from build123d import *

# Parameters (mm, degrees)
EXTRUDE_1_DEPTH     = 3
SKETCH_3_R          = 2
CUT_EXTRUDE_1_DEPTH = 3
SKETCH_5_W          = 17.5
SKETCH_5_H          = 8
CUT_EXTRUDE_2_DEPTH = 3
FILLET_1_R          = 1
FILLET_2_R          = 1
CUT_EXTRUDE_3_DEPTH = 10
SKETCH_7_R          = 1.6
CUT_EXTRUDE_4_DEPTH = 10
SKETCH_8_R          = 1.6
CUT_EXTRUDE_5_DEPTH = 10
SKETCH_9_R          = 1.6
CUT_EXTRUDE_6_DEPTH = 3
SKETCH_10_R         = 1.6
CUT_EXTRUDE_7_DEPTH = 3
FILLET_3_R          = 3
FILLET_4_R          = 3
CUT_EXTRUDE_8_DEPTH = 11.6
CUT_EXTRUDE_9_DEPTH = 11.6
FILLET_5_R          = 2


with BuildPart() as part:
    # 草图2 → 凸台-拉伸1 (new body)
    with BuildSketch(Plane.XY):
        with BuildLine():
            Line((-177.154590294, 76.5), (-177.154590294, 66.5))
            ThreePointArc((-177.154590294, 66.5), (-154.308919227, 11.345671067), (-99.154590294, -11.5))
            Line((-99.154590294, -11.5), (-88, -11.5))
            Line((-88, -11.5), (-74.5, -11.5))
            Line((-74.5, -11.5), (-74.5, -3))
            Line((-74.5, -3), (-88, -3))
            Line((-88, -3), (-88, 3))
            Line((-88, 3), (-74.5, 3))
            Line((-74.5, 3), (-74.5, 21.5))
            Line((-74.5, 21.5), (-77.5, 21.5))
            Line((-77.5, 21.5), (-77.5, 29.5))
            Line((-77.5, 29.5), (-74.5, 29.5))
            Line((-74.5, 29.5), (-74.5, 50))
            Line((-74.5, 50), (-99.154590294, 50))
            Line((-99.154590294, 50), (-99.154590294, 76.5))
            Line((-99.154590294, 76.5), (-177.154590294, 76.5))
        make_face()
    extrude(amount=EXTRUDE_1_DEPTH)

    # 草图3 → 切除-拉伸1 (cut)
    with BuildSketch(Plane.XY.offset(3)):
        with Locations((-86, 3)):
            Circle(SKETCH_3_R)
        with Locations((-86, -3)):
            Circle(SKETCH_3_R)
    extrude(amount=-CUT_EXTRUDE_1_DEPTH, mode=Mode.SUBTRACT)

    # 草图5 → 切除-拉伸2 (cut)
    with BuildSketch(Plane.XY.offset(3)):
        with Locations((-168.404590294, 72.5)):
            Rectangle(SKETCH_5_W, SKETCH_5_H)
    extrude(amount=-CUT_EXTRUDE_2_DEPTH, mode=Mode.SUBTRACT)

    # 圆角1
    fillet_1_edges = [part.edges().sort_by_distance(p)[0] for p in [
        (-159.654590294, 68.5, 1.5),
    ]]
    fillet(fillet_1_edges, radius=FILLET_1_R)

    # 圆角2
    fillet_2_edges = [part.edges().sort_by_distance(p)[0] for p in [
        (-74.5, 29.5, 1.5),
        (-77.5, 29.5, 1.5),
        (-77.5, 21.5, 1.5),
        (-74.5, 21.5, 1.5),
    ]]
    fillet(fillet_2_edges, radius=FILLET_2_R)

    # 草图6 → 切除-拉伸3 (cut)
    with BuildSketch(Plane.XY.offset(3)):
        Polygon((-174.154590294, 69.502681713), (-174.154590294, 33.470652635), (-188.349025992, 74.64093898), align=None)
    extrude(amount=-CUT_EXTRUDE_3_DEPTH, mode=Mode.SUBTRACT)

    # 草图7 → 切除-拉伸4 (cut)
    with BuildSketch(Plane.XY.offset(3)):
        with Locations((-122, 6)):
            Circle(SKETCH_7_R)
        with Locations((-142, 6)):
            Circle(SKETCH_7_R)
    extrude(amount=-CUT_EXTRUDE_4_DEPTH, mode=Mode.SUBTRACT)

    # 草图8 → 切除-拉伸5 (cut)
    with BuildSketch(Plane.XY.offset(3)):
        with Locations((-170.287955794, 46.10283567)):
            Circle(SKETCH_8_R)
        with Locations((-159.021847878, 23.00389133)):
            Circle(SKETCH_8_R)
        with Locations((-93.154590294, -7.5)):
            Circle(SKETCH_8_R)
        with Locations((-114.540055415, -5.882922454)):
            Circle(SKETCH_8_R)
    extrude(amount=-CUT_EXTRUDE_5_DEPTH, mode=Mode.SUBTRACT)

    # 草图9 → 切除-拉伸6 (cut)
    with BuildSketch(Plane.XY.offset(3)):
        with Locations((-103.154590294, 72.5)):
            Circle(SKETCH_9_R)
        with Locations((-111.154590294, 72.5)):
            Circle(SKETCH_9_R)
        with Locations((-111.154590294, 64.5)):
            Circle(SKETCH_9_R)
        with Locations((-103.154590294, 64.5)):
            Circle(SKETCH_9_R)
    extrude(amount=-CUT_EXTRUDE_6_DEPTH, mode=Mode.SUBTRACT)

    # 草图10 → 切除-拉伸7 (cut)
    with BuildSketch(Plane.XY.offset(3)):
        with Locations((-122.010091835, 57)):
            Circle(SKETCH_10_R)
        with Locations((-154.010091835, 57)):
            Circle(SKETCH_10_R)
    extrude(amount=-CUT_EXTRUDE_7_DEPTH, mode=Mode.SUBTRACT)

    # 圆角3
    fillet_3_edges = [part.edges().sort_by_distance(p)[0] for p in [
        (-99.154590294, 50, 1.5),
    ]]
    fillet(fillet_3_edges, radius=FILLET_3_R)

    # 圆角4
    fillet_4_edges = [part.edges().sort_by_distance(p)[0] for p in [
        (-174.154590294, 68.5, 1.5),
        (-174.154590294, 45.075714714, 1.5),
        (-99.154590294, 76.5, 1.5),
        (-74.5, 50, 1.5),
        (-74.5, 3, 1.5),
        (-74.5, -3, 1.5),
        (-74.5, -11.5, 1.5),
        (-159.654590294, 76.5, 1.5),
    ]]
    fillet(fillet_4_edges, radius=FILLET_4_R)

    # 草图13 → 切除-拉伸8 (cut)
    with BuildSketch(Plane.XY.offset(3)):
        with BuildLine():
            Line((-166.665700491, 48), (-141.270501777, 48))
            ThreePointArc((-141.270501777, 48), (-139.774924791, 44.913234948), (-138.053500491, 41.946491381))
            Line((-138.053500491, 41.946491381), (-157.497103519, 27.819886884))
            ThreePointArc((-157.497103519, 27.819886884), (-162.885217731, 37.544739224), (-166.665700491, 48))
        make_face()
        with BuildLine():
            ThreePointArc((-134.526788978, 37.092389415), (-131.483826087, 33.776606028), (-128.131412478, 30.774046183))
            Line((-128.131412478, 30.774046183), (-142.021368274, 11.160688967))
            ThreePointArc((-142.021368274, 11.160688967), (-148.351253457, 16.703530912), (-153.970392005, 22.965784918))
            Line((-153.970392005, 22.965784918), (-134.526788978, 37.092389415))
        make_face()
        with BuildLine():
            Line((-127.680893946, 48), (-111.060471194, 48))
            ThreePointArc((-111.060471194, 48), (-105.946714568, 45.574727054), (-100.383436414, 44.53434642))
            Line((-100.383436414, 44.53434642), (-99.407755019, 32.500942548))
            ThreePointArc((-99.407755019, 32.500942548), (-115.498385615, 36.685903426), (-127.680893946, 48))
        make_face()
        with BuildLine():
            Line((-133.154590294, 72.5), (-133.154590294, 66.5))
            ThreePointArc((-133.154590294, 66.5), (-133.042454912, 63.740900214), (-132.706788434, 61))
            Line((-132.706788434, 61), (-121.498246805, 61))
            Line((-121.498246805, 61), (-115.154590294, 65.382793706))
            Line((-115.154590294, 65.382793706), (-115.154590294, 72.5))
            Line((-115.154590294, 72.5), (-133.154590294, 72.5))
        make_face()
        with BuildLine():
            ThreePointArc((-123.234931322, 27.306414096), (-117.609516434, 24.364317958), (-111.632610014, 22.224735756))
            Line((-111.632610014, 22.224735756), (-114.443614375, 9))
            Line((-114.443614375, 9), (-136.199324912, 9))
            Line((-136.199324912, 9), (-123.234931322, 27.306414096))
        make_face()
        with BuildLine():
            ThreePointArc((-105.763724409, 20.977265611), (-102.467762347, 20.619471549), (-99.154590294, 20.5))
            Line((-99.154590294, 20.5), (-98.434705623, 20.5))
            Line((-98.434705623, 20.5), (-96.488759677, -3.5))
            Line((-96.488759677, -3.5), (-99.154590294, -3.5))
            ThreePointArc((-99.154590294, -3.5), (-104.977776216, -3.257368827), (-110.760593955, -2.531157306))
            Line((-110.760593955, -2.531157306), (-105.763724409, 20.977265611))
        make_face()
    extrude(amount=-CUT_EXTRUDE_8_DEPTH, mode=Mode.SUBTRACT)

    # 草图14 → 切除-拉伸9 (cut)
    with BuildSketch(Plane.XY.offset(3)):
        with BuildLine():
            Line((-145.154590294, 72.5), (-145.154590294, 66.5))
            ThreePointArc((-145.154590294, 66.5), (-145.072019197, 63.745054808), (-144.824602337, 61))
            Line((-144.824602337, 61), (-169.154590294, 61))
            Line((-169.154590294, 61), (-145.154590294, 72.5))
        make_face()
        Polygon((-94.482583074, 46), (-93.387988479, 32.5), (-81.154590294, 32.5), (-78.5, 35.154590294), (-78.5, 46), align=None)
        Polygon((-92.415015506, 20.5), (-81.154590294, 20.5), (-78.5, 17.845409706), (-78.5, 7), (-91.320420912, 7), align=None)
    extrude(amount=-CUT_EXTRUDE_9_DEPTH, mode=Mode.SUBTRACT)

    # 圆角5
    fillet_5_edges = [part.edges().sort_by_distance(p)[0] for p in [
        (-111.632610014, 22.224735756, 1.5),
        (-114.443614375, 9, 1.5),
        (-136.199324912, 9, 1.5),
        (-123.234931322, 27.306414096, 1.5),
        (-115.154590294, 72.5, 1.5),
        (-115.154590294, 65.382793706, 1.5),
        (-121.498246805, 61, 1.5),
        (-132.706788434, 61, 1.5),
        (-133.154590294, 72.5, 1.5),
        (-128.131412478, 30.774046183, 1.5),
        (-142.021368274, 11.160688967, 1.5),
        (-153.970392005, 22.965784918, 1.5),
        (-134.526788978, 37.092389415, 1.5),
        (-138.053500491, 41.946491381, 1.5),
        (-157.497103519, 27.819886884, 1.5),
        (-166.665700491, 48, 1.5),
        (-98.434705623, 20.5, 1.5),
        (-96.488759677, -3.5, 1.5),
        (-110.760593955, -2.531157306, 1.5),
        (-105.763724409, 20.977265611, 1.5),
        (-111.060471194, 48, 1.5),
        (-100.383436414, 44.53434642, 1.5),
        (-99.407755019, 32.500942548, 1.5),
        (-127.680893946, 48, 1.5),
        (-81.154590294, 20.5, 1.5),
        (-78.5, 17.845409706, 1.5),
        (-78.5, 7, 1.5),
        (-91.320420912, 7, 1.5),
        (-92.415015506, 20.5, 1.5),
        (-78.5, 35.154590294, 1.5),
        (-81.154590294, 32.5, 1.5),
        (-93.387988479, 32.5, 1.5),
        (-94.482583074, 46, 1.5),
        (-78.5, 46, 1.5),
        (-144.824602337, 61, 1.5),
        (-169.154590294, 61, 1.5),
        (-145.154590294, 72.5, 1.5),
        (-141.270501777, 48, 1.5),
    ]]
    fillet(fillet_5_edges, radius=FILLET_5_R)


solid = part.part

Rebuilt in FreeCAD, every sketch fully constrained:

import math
import FreeCAD as App
import Part
import Sketcher
Q = App.Units.Quantity


def edges_at(feature, points):
    """Names of the edges that pass closest to the given points."""
    edges = feature.Shape.Edges
    near = lambda p: min(range(len(edges)), key=lambda i: edges[i].distToShape(Part.Vertex(*p))[0])
    return sorted({f"Edge{near(p) + 1}" for p in points})


def add_polygon(sketch, points):
    """Adds a closed chain of lines whose ends are joined by coincident constraints."""
    first, n = sketch.GeometryCount, len(points)
    for a, b in zip(points, points[1:] + points[:1]):
        sketch.addGeometry(Part.LineSegment(App.Vector(*a, 0), App.Vector(*b, 0)), False)
    for i in range(n):
        sketch.addConstraint(Sketcher.Constraint("Coincident", first + i, 2, first + (i + 1) % n, 1))

doc = App.newDocument("Part")
params = doc.addObject("Spreadsheet::Sheet", "Params")
for row, (alias, value) in enumerate([
    ("sketch1_radius", "78 mm"),
    ("sketch1_width", "3 mm"),
    ("sketch1_height", "10 mm"),
    ("sketch1_height2", "6 mm"),
    ("sketch1_height3", "8 mm"),
    ("pad1_length", "3 mm"),
    ("sketch2_diameter", "4 mm"),
    ("pocket1_length", "3 mm"),
    ("sketch3_height", "8 mm"),
    ("sketch3_width", "17.5 mm"),
    ("pocket2_length", "3 mm"),
    ("fillet_radius", "1 mm"),
    ("fillet2_radius", "1 mm"),
    ("pocket3_length", "10 mm"),
    ("sketch5_diameter", "3.2 mm"),
    ("pocket4_length", "10 mm"),
    ("sketch6_diameter", "3.2 mm"),
    ("pocket5_length", "10 mm"),
    ("sketch7_diameter", "3.2 mm"),
    ("pocket6_length", "3 mm"),
    ("sketch8_diameter", "3.2 mm"),
    ("pocket7_length", "3 mm"),
    ("fillet3_radius", "3 mm"),
    ("fillet4_radius", "3 mm"),
    ("sketch9_radius", "70 mm"),
    ("sketch9_radius2", "46 mm"),
    ("sketch9_radius3", "34 mm"),
    ("sketch9_radius4", "22 mm"),
    ("sketch9_width", "18 mm"),
    ("pocket8_length", "11.6 mm"),
    ("sketch10_radius", "46 mm"),
    ("sketch10_height", "6 mm"),
    ("pocket9_length", "11.6 mm"),
    ("fillet5_radius", "2 mm"),
], start=1):
    params.set(f"A{row}", alias)
    params.set(f"B{row}", "=" + value)
    params.setAlias(f"B{row}", alias)

body = doc.addObject("PartDesign::Body", "Body")

# Sketch on XY plane
sketch1 = body.newObject("Sketcher::SketchObject", "Sketch")
sketch1.AttachmentSupport = (doc.getObject("XY_Plane"), [""])
sketch1.MapMode = "FlatFace"
sketch1.addGeometry([
    Part.LineSegment(App.Vector(-177.2, 76.5, 0), App.Vector(-177.2, 66.5, 0)),  # 0
    Part.ArcOfCircle(Part.Circle(App.Vector(-99.2, 66.5, 0), App.Vector(0, 0, 1), 78), math.radians(180), math.radians(270)),  # 1
    Part.LineSegment(App.Vector(-99.2, -11.5, 0), App.Vector(-74.5, -11.5, 0)),  # 2
    Part.LineSegment(App.Vector(-74.5, -11.5, 0), App.Vector(-74.5, -3, 0)),  # 3
    Part.LineSegment(App.Vector(-74.5, -3, 0), App.Vector(-88, -3, 0)),  # 4
    Part.LineSegment(App.Vector(-88, -3, 0), App.Vector(-88, 3, 0)),  # 5
    Part.LineSegment(App.Vector(-88, 3, 0), App.Vector(-74.5, 3, 0)),  # 6
    Part.LineSegment(App.Vector(-74.5, 3, 0), App.Vector(-74.5, 21.5, 0)),  # 7
    Part.LineSegment(App.Vector(-74.5, 21.5, 0), App.Vector(-77.5, 21.5, 0)),  # 8
    Part.LineSegment(App.Vector(-77.5, 21.5, 0), App.Vector(-77.5, 29.5, 0)),  # 9
    Part.LineSegment(App.Vector(-77.5, 29.5, 0), App.Vector(-74.5, 29.5, 0)),  # 10
    Part.LineSegment(App.Vector(-74.5, 29.5, 0), App.Vector(-74.5, 50, 0)),  # 11
    Part.LineSegment(App.Vector(-74.5, 50, 0), App.Vector(-99.2, 50, 0)),  # 12
    Part.LineSegment(App.Vector(-99.2, 50, 0), App.Vector(-99.2, 76.5, 0)),  # 13
    Part.LineSegment(App.Vector(-99.2, 76.5, 0), App.Vector(-177.2, 76.5, 0)),  # 14
], False)
sketch1.addConstraint([
    Sketcher.Constraint("Tangent", 0, 2, 1, 1),
    Sketcher.Constraint("Tangent", 1, 2, 2, 1),
    Sketcher.Constraint("Coincident", 2, 2, 3, 1),
    Sketcher.Constraint("Coincident", 3, 2, 4, 1),
    Sketcher.Constraint("Coincident", 4, 2, 5, 1),
    Sketcher.Constraint("Coincident", 5, 2, 6, 1),
    Sketcher.Constraint("Coincident", 6, 2, 7, 1),
    Sketcher.Constraint("Coincident", 7, 2, 8, 1),
    Sketcher.Constraint("Coincident", 8, 2, 9, 1),
    Sketcher.Constraint("Coincident", 9, 2, 10, 1),
    Sketcher.Constraint("Coincident", 10, 2, 11, 1),
    Sketcher.Constraint("Coincident", 11, 2, 12, 1),
    Sketcher.Constraint("Coincident", 12, 2, 13, 1),
    Sketcher.Constraint("Coincident", 13, 2, 14, 1),
    Sketcher.Constraint("Coincident", 14, 2, 0, 1),
    Sketcher.Constraint("Vertical", 0),
    Sketcher.Constraint("Horizontal", 2),
    Sketcher.Constraint("Vertical", 3),
    Sketcher.Constraint("Horizontal", 4),
    Sketcher.Constraint("Vertical", 5),
    Sketcher.Constraint("Horizontal", 6),
    Sketcher.Constraint("Vertical", 7),
    Sketcher.Constraint("Horizontal", 8),
    Sketcher.Constraint("Vertical", 9),
    Sketcher.Constraint("Horizontal", 10),
    Sketcher.Constraint("Vertical", 11),
    Sketcher.Constraint("Horizontal", 12),
    Sketcher.Constraint("Vertical", 13),
    Sketcher.Constraint("Horizontal", 14),
    Sketcher.Constraint("Symmetric", 3, 2, 6, 2, -1),
    Sketcher.Constraint("Vertical", 7, 2, 10, 2),
    Sketcher.Constraint("Vertical", 1, 2, 12, 2),
    Sketcher.Constraint("Radius", 1, 78.0),
    Sketcher.Constraint("DistanceX", 8, 2, 8, 1, 3.0),
    Sketcher.Constraint("DistanceY", 0, 2, 0, 1, 10.0),
    Sketcher.Constraint("DistanceY", 5, 1, 5, 2, 6.0),
    Sketcher.Constraint("DistanceY", 9, 1, 9, 2, 8.0),
    Sketcher.Constraint("DistanceX", 4, 2, 4, 1, 13.5),
    Sketcher.Constraint("DistanceY", 3, 1, 3, 2, 8.5),
    Sketcher.Constraint("DistanceY", 7, 1, 7, 2, 18.5),
    Sketcher.Constraint("DistanceY", 11, 1, 11, 2, 20.5),
    Sketcher.Constraint("DistanceX", 4, 2, -1, 1, 88.0),
    Sketcher.Constraint("DistanceX", 2, 1, 2, 2, 24.65459),
])
sketch1.setExpression("Constraints[32]", "Params.sketch1_radius")
sketch1.setExpression("Constraints[33]", "Params.sketch1_width")
sketch1.setExpression("Constraints[34]", "Params.sketch1_height")
sketch1.setExpression("Constraints[35]", "Params.sketch1_height2")
sketch1.setExpression("Constraints[36]", "Params.sketch1_height3")
pad1 = body.newObject("PartDesign::Pad", "Pad")
pad1.Profile = sketch1
pad1.setExpression("Length", "Params.pad1_length")

# Sketch on XY plane
sketch2 = body.newObject("Sketcher::SketchObject", "Sketch001")
sketch2.AttachmentSupport = (doc.getObject("XY_Plane"), [""])
sketch2.MapMode = "FlatFace"
sketch2.AttachmentOffset = App.Placement(App.Vector(0, 0, 3), App.Rotation())
sketch2.addGeometry([
    Part.Circle(App.Vector(-86, 3, 0), App.Vector(0, 0, 1), 2),
    Part.Circle(App.Vector(-86, -3, 0), App.Vector(0, 0, 1), 2),
], False)
sketch2.addConstraint([
    Sketcher.Constraint("Equal", 0, 1),
    Sketcher.Constraint("Symmetric", 0, 3, 1, 3, -1),
    Sketcher.Constraint("Diameter", 0, 4.0),
    Sketcher.Constraint("DistanceX", 0, 3, -1, 1, 86.0),
    Sketcher.Constraint("DistanceY", -1, 1, 0, 3, 3.0),
])
sketch2.setExpression("Constraints[2]", "Params.sketch2_diameter")
pocket1 = body.newObject("PartDesign::Pocket", "Pocket")
pocket1.Profile = sketch2
pocket1.setExpression("Length", "Params.pocket1_length")

# Sketch on XY plane
sketch3 = body.newObject("Sketcher::SketchObject", "Sketch002")
sketch3.AttachmentSupport = (doc.getObject("XY_Plane"), [""])
sketch3.MapMode = "FlatFace"
sketch3.AttachmentOffset = App.Placement(App.Vector(0, 0, 3), App.Rotation())
add_polygon(sketch3, [(-177, 76), (-177, 68), (-160, 68), (-160, 76)])  # lines 0-3
sketch3.addConstraint([
    Sketcher.Constraint("Vertical", 0),
    Sketcher.Constraint("Horizontal", 1),
    Sketcher.Constraint("Vertical", 2),
    Sketcher.Constraint("Horizontal", 3),
    Sketcher.Constraint("DistanceY", 0, 2, 0, 1, 8.0),
    Sketcher.Constraint("DistanceX", 1, 1, 1, 2, 17.5),
    Sketcher.Constraint("DistanceY", -1, 1, 0, 2, 68.5),
    Sketcher.Constraint("DistanceX", 0, 2, -1, 1, 177.15459),
])
sketch3.setExpression("Constraints[8]", "Params.sketch3_height")
sketch3.setExpression("Constraints[9]", "Params.sketch3_width")
pocket2 = body.newObject("PartDesign::Pocket", "Pocket001")
pocket2.Profile = sketch3
pocket2.setExpression("Length", "Params.pocket2_length")
doc.recompute()

fillet = body.newObject("PartDesign::Fillet", "Fillet")
fillet.Base = (pocket2, edges_at(pocket2, [(-159.655, 68.5, 1.5)]))
fillet.setExpression("Radius", "Params.fillet_radius")
doc.recompute()

fillet2 = body.newObject("PartDesign::Fillet", "Fillet001")
fillet2.Base = (fillet, edges_at(fillet, [
    (-74.5, 29.5, 1.5),
    (-77.5, 29.5, 1.5),
    (-77.5, 21.5, 1.5),
    (-74.5, 21.5, 1.5),
]))
fillet2.setExpression("Radius", "Params.fillet2_radius")

# Sketch on XY plane
sketch4 = body.newObject("Sketcher::SketchObject", "Sketch003")
sketch4.AttachmentSupport = (doc.getObject("XY_Plane"), [""])
sketch4.MapMode = "FlatFace"
sketch4.AttachmentOffset = App.Placement(App.Vector(0, 0, 3), App.Rotation())
add_polygon(sketch4, [(-174, 33), (-174, 70), (-188, 75)])  # lines 0-2
sketch4.addConstraint([
    Sketcher.Constraint("Vertical", 0),
    Sketcher.Constraint("DistanceY", 0, 1, 0, 2, 36.032029),
    Sketcher.Constraint("Distance", 2, 43.54853),
    Sketcher.Constraint("DistanceX", 0, 2, -1, 1, 174.15459),
    Sketcher.Constraint("DistanceY", -1, 1, 0, 2, 69.502682),
    Sketcher.Constraint("DistanceY", -1, 1, 1, 2, 74.640939),
])
pocket3 = body.newObject("PartDesign::Pocket", "Pocket002")
pocket3.Profile = sketch4
pocket3.setExpression("Length", "Params.pocket3_length")

# Sketch on XY plane
sketch5 = body.newObject("Sketcher::SketchObject", "Sketch004")
sketch5.AttachmentSupport = (doc.getObject("XY_Plane"), [""])
sketch5.MapMode = "FlatFace"
sketch5.AttachmentOffset = App.Placement(App.Vector(0, 0, 3), App.Rotation())
sketch5.addGeometry([
    Part.Circle(App.Vector(-122, 6, 0), App.Vector(0, 0, 1), 1.6),
    Part.Circle(App.Vector(-142, 6, 0), App.Vector(0, 0, 1), 1.6),
], False)
sketch5.addConstraint([
    Sketcher.Constraint("Equal", 0, 1),
    Sketcher.Constraint("Horizontal", 0, 3, 1, 3),
    Sketcher.Constraint("Diameter", 0, 3.2),
    Sketcher.Constraint("DistanceX", 0, 3, -1, 1, 122.0),
    Sketcher.Constraint("DistanceY", -1, 1, 0, 3, 6.0),
    Sketcher.Constraint("DistanceX", 1, 3, -1, 1, 142.0),
])
sketch5.setExpression("Constraints[2]", "Params.sketch5_diameter")
pocket4 = body.newObject("PartDesign::Pocket", "Pocket003")
pocket4.Profile = sketch5
pocket4.setExpression("Length", "Params.pocket4_length")

# Sketch on XY plane
sketch6 = body.newObject("Sketcher::SketchObject", "Sketch005")
sketch6.AttachmentSupport = (doc.getObject("XY_Plane"), [""])
sketch6.MapMode = "FlatFace"
sketch6.AttachmentOffset = App.Placement(App.Vector(0, 0, 3), App.Rotation())
sketch6.addGeometry([
    Part.Circle(App.Vector(-170.3, 46.1, 0), App.Vector(0, 0, 1), 1.6),
    Part.Circle(App.Vector(-159, 23, 0), App.Vector(0, 0, 1), 1.6),
    Part.Circle(App.Vector(-93.2, -7.5, 0), App.Vector(0, 0, 1), 1.6),
    Part.Circle(App.Vector(-114.5, -5.9, 0), App.Vector(0, 0, 1), 1.6),
], False)
sketch6.addConstraint([
    Sketcher.Constraint("Equal", 0, 1),
    Sketcher.Constraint("Equal", 1, 2),
    Sketcher.Constraint("Equal", 2, 3),
    Sketcher.Constraint("Diameter", 0, 3.2),
    Sketcher.Constraint("DistanceY", 2, 3, -1, 1, 7.5),
    Sketcher.Constraint("DistanceX", 0, 3, 3, 3, 55.7479),
    Sketcher.Constraint("DistanceY", -1, 1, 1, 3, 23.003891),
    Sketcher.Constraint("DistanceX", 2, 3, -1, 1, 93.15459),
    Sketcher.Constraint("DistanceY", 3, 3, 0, 3, 51.985758),
    Sketcher.Constraint("DistanceX", 0, 3, -1, 1, 170.287956),
    Sketcher.Constraint("DistanceY", -1, 1, 0, 3, 46.102836),
    Sketcher.Constraint("DistanceX", 1, 3, -1, 1, 159.021848),
])
sketch6.setExpression("Constraints[3]", "Params.sketch6_diameter")
pocket5 = body.newObject("PartDesign::Pocket", "Pocket004")
pocket5.Profile = sketch6
pocket5.setExpression("Length", "Params.pocket5_length")

# Sketch on XY plane
sketch7 = body.newObject("Sketcher::SketchObject", "Sketch006")
sketch7.AttachmentSupport = (doc.getObject("XY_Plane"), [""])
sketch7.MapMode = "FlatFace"
sketch7.AttachmentOffset = App.Placement(App.Vector(0, 0, 3), App.Rotation())
sketch7.addGeometry([
    Part.Circle(App.Vector(-103.2, 72.5, 0), App.Vector(0, 0, 1), 1.6),
    Part.Circle(App.Vector(-111.2, 72.5, 0), App.Vector(0, 0, 1), 1.6),
    Part.Circle(App.Vector(-111.2, 64.5, 0), App.Vector(0, 0, 1), 1.6),
    Part.Circle(App.Vector(-103.2, 64.5, 0), App.Vector(0, 0, 1), 1.6),
], False)
sketch7.addConstraint([
    Sketcher.Constraint("Equal", 0, 1),
    Sketcher.Constraint("Equal", 1, 2),
    Sketcher.Constraint("Equal", 2, 3),
    Sketcher.Constraint("Horizontal", 0, 3, 1, 3),
    Sketcher.Constraint("Horizontal", 2, 3, 3, 3),
    Sketcher.Constraint("Vertical", 1, 3, 2, 3),
    Sketcher.Constraint("Vertical", 0, 3, 3, 3),
    Sketcher.Constraint("Diameter", 0, 3.2),
    Sketcher.Constraint("DistanceX", 1, 3, 0, 3, 8.0),
    Sketcher.Constraint("DistanceY", 2, 3, 1, 3, 8.0),
    Sketcher.Constraint("DistanceY", -1, 1, 0, 3, 72.5),
    Sketcher.Constraint("DistanceX", 0, 3, -1, 1, 103.15459),
])
sketch7.setExpression("Constraints[7]", "Params.sketch7_diameter")
pocket6 = body.newObject("PartDesign::Pocket", "Pocket005")
pocket6.Profile = sketch7
pocket6.setExpression("Length", "Params.pocket6_length")

# Sketch on XY plane
sketch8 = body.newObject("Sketcher::SketchObject", "Sketch007")
sketch8.AttachmentSupport = (doc.getObject("XY_Plane"), [""])
sketch8.MapMode = "FlatFace"
sketch8.AttachmentOffset = App.Placement(App.Vector(0, 0, 3), App.Rotation())
sketch8.addGeometry([
    Part.Circle(App.Vector(-122, 57, 0), App.Vector(0, 0, 1), 1.6),
    Part.Circle(App.Vector(-154, 57, 0), App.Vector(0, 0, 1), 1.6),
], False)
sketch8.addConstraint([
    Sketcher.Constraint("Equal", 0, 1),
    Sketcher.Constraint("Horizontal", 0, 3, 1, 3),
    Sketcher.Constraint("Diameter", 0, 3.2),
    Sketcher.Constraint("DistanceY", -1, 1, 0, 3, 57.0),
    Sketcher.Constraint("DistanceX", 1, 3, 0, 3, 32.0),
    Sketcher.Constraint("DistanceX", 0, 3, -1, 1, 122.010092),
])
sketch8.setExpression("Constraints[2]", "Params.sketch8_diameter")
pocket7 = body.newObject("PartDesign::Pocket", "Pocket006")
pocket7.Profile = sketch8
pocket7.setExpression("Length", "Params.pocket7_length")
doc.recompute()

fillet3 = body.newObject("PartDesign::Fillet", "Fillet002")
fillet3.Base = (pocket7, edges_at(pocket7, [(-99.155, 50, 1.5)]))
fillet3.setExpression("Radius", "Params.fillet3_radius")
doc.recompute()

fillet4 = body.newObject("PartDesign::Fillet", "Fillet003")
fillet4.Base = (fillet3, edges_at(fillet3, [
    (-174.155, 68.5, 1.5),
    (-174.155, 45.076, 1.5),
    (-99.155, 76.5, 1.5),
    (-74.5, 50, 1.5),
    (-74.5, 3, 1.5),
    (-74.5, -3, 1.5),
    (-74.5, -11.5, 1.5),
    (-159.655, 76.5, 1.5),
]))
fillet4.setExpression("Radius", "Params.fillet4_radius")

# Sketch on XY plane
sketch9 = body.newObject("Sketcher::SketchObject", "Sketch008")
sketch9.AttachmentSupport = (doc.getObject("XY_Plane"), [""])
sketch9.MapMode = "FlatFace"
sketch9.AttachmentOffset = App.Placement(App.Vector(0, 0, 3), App.Rotation())
sketch9.addGeometry([
    Part.LineSegment(App.Vector(-141.3, 48, 0), App.Vector(-166.7, 48, 0)),  # 0
    Part.ArcOfCircle(Part.Circle(App.Vector(-99.2, 66.5, 0), App.Vector(0, 0, 1), 70), math.radians(-164.68), math.radians(-146.46)),  # 1
    Part.LineSegment(App.Vector(-157.5, 27.8, 0), App.Vector(-138.1, 41.9, 0)),  # 2
    Part.ArcOfCircle(Part.Circle(App.Vector(-99.2, 66.5, 0), App.Vector(0, 0, 1), 46), math.radians(-156.29), math.radians(-147.74)),  # 3
    Part.ArcOfCircle(Part.Circle(App.Vector(-99.2, 66.5, 0), App.Vector(0, 0, 1), 46), math.radians(-140.26), math.radians(-129.05)),  # 4
    Part.LineSegment(App.Vector(-134.5, 37.1, 0), App.Vector(-154, 23, 0)),  # 5
    Part.ArcOfCircle(Part.Circle(App.Vector(-99.2, 66.5, 0), App.Vector(0, 0, 1), 70), math.radians(-141.54), math.radians(-127.76)),  # 6
    Part.LineSegment(App.Vector(-142, 11.2, 0), App.Vector(-128.1, 30.8, 0)),  # 7
    Part.LineSegment(App.Vector(-111.1, 48, 0), App.Vector(-127.7, 48, 0)),  # 8
    Part.ArcOfCircle(Part.Circle(App.Vector(-99.2, 66.5, 0), App.Vector(0, 0, 1), 34), math.radians(-147), math.radians(-90)),  # 9
    Part.LineSegment(App.Vector(-99.4, 32.5, 0), App.Vector(-100.4, 44.5, 0)),  # 10
    Part.ArcOfCircle(Part.Circle(App.Vector(-99.2, 66.5, 0), App.Vector(0, 0, 1), 22), math.radians(-123), math.radians(-93)),  # 11
    Part.LineSegment(App.Vector(-133.2, 72.5, 0), App.Vector(-133.2, 66.5, 0)),  # 12
    Part.ArcOfCircle(Part.Circle(App.Vector(-99.2, 66.5, 0), App.Vector(0, 0, 1), 34), math.radians(-180), math.radians(-170.69)),  # 13
    Part.LineSegment(App.Vector(-132.7, 61, 0), App.Vector(-121.5, 61, 0)),  # 14
    Part.LineSegment(App.Vector(-121.5, 61, 0), App.Vector(-115.2, 65.4, 0)),  # 15
    Part.LineSegment(App.Vector(-115.2, 65.4, 0), App.Vector(-115.2, 72.5, 0)),  # 16
    Part.LineSegment(App.Vector(-115.2, 72.5, 0), App.Vector(-133.2, 72.5, 0)),  # 17
    Part.ArcOfCircle(Part.Circle(App.Vector(-99.2, 66.5, 0), App.Vector(0, 0, 1), 46), math.radians(-121.57), math.radians(-105.74)),  # 18
    Part.LineSegment(App.Vector(-123.2, 27.3, 0), App.Vector(-136.2, 9, 0)),  # 19
    Part.LineSegment(App.Vector(-136.2, 9, 0), App.Vector(-114.4, 9, 0)),  # 20
    Part.LineSegment(App.Vector(-114.4, 9, 0), App.Vector(-111.6, 22.2, 0)),  # 21
    Part.ArcOfCircle(Part.Circle(App.Vector(-99.2, 66.5, 0), App.Vector(0, 0, 1), 46), math.radians(-98.26), math.radians(-90)),  # 22
    Part.LineSegment(App.Vector(-105.8, 21, 0), App.Vector(-110.8, -2.5, 0)),  # 23
    Part.ArcOfCircle(Part.Circle(App.Vector(-99.2, 66.5, 0), App.Vector(0, 0, 1), 70), math.radians(-99.54), math.radians(-90)),  # 24
    Part.LineSegment(App.Vector(-99.2, -3.5, 0), App.Vector(-96.5, -3.5, 0)),  # 25
    Part.LineSegment(App.Vector(-96.5, -3.5, 0), App.Vector(-98.4, 20.5, 0)),  # 26
    Part.LineSegment(App.Vector(-98.4, 20.5, 0), App.Vector(-99.2, 20.5, 0)),  # 27
], False)
sketch9.addConstraint([
    Sketcher.Constraint("Coincident", 0, 2, 1, 1),
    Sketcher.Constraint("Coincident", 1, 2, 2, 1),
    Sketcher.Constraint("Coincident", 2, 2, 3, 2),
    Sketcher.Constraint("Coincident", 3, 1, 0, 1),
    Sketcher.Constraint("Coincident", 4, 1, 5, 1),
    Sketcher.Constraint("Coincident", 5, 2, 6, 1),
    Sketcher.Constraint("Coincident", 6, 2, 7, 1),
    Sketcher.Constraint("Coincident", 7, 2, 4, 2),
    Sketcher.Constraint("Coincident", 8, 2, 9, 1),
    Sketcher.Constraint("Coincident", 9, 2, 10, 1),
    Sketcher.Constraint("Coincident", 10, 2, 11, 2),
    Sketcher.Constraint("Coincident", 11, 1, 8, 1),
    Sketcher.Constraint("Tangent", 12, 2, 13, 1),
    Sketcher.Constraint("Coincident", 13, 2, 14, 1),
    Sketcher.Constraint("Coincident", 14, 2, 15, 1),
    Sketcher.Constraint("Coincident", 15, 2, 16, 1),
    Sketcher.Constraint("Coincident", 16, 2, 17, 1),
    Sketcher.Constraint("Coincident", 17, 2, 12, 1),
    Sketcher.Constraint("Coincident", 18, 1, 19, 1),
    Sketcher.Constraint("Coincident", 19, 2, 20, 1),
    Sketcher.Constraint("Coincident", 20, 2, 21, 1),
    Sketcher.Constraint("Coincident", 21, 2, 18, 2),
    Sketcher.Constraint("Coincident", 22, 1, 23, 1),
    Sketcher.Constraint("Coincident", 23, 2, 24, 1),
    Sketcher.Constraint("Tangent", 24, 2, 25, 1),
    Sketcher.Constraint("Coincident", 25, 2, 26, 1),
    Sketcher.Constraint("Coincident", 26, 2, 27, 1),
    Sketcher.Constraint("Tangent", 27, 2, 22, 2),
    Sketcher.Constraint("Horizontal", 0),
    Sketcher.Constraint("Horizontal", 8),
    Sketcher.Constraint("Vertical", 12),
    Sketcher.Constraint("Horizontal", 14),
    Sketcher.Constraint("Vertical", 16),
    Sketcher.Constraint("Horizontal", 17),
    Sketcher.Constraint("Horizontal", 20),
    Sketcher.Constraint("Horizontal", 25),
    Sketcher.Constraint("Horizontal", 27),
    Sketcher.Constraint("Coincident", 3, 3, 1, 3),
    Sketcher.Constraint("Coincident", 4, 3, 1, 3),
    Sketcher.Constraint("Coincident", 6, 3, 1, 3),
    Sketcher.Constraint("Coincident", 9, 3, 1, 3),
    Sketcher.Constraint("Coincident", 11, 3, 1, 3),
    Sketcher.Constraint("Coincident", 13, 3, 1, 3),
    Sketcher.Constraint("Coincident", 18, 3, 1, 3),
    Sketcher.Constraint("Coincident", 22, 3, 1, 3),
    Sketcher.Constraint("Coincident", 24, 3, 1, 3),
    Sketcher.Constraint("Equal", 3, 4),
    Sketcher.Constraint("Equal", 1, 6),
    Sketcher.Constraint("Equal", 9, 13),
    Sketcher.Constraint("Equal", 4, 18),
    Sketcher.Constraint("Equal", 18, 22),
    Sketcher.Constraint("Equal", 6, 24),
    Sketcher.Constraint("Parallel", 2, 5),
    Sketcher.Constraint("Parallel", 7, 19),
    Sketcher.Constraint("Parallel", 21, 23),
    Sketcher.Constraint("Parallel", 10, 26),
    Sketcher.Constraint("Horizontal", 3, 1, 8, 2),
    Sketcher.Constraint("Equal", 2, 5),
    Sketcher.Constraint("Equal", 5, 7),
    Sketcher.Constraint("Equal", 7, 23),
    Sketcher.Constraint("Radius", 1, 70.0),
    Sketcher.Constraint("Radius", 3, 46.0),
    Sketcher.Constraint("Radius", 9, 34.0),
    Sketcher.Constraint("Radius", 11, 22.0),
    Sketcher.Constraint("DistanceX", 17, 2, 17, 1, 18.0),
    Sketcher.Constraint("DistanceY", 12, 2, 12, 1, 6.0),
    Sketcher.Constraint("Angle", 2, Q("36 deg")),
    Sketcher.Constraint("Angle", 21, Q("78 deg")),
    Sketcher.Constraint("DistanceY", -1, 1, 0, 2, 48.0),
    Sketcher.Constraint("DistanceY", -1, 1, 13, 2, 61.0),
    Sketcher.Constraint("DistanceY", -1, 1, 19, 2, 9.0),
    Sketcher.Constraint("DistanceY", -1, 1, 1, 3, 66.5),
    Sketcher.Constraint("DistanceX", 4, 1, 13, 2, 1.820001),
    Sketcher.Constraint("DistanceX", 14, 1, 14, 2, 11.208542),
    Sketcher.Constraint("DistanceX", 20, 1, 20, 2, 21.755711),
    Sketcher.Constraint("DistanceX", 25, 1, 25, 2, 2.665831),
    Sketcher.Constraint("DistanceX", 0, 2, -1, 1, 166.6657),
    Sketcher.Constraint("DistanceY", 6, 2, 4, 1, 25.9317),
    Sketcher.Constraint("DistanceX", 7, 2, 20, 2, 13.687798),
    Sketcher.Constraint("Distance", 15, 7.710438),
    Sketcher.Constraint("Distance", 26, 24.07876),
    Sketcher.Constraint("DistanceX", 8, 2, 9, 2, 28.273139),
])
sketch9.setExpression("Constraints[60]", "Params.sketch9_radius")
sketch9.setExpression("Constraints[61]", "Params.sketch9_radius2")
sketch9.setExpression("Constraints[62]", "Params.sketch9_radius3")
sketch9.setExpression("Constraints[63]", "Params.sketch9_radius4")
sketch9.setExpression("Constraints[64]", "Params.sketch9_width")
pocket8 = body.newObject("PartDesign::Pocket", "Pocket007")
pocket8.Profile = sketch9
pocket8.setExpression("Length", "Params.pocket8_length")

# Sketch on XY plane
sketch10 = body.newObject("Sketcher::SketchObject", "Sketch009")
sketch10.AttachmentSupport = (doc.getObject("XY_Plane"), [""])
sketch10.MapMode = "FlatFace"
sketch10.AttachmentOffset = App.Placement(App.Vector(0, 0, 3), App.Rotation())
sketch10.addGeometry(Part.LineSegment(App.Vector(-145.2, 66.5, 0), App.Vector(-145.2, 72.5, 0)), False)  # 0
sketch10.addGeometry(Part.LineSegment(App.Vector(-145.2, 72.5, 0), App.Vector(-169.2, 61, 0)), False)  # 1
sketch10.addGeometry(Part.LineSegment(App.Vector(-169.2, 61, 0), App.Vector(-144.8, 61, 0)), False)  # 2
sketch10.addGeometry(Part.ArcOfCircle(Part.Circle(App.Vector(-99.2, 66.5, 0), App.Vector(0, 0, 1), 46), math.radians(180), math.radians(186.87)), False)  # 3
add_polygon(sketch10, [(-94.5, 46), (-93.4, 32.5), (-81.2, 32.5), (-78.5, 35.2), (-78.5, 46)])  # lines 4-8
add_polygon(sketch10, [(-81.2, 20.5), (-92.4, 20.5), (-91.3, 7), (-78.5, 7), (-78.5, 17.8)])  # lines 9-13
sketch10.addConstraint([
    Sketcher.Constraint("Coincident", 0, 2, 1, 1),
    Sketcher.Constraint("Coincident", 1, 2, 2, 1),
    Sketcher.Constraint("Coincident", 2, 2, 3, 2),
    Sketcher.Constraint("Tangent", 3, 1, 0, 1),
    Sketcher.Constraint("Vertical", 0),
    Sketcher.Constraint("Horizontal", 2),
    Sketcher.Constraint("Horizontal", 5),
    Sketcher.Constraint("Vertical", 7),
    Sketcher.Constraint("Horizontal", 8),
    Sketcher.Constraint("Horizontal", 9),
    Sketcher.Constraint("Horizontal", 11),
    Sketcher.Constraint("Vertical", 12),
    Sketcher.Constraint("Parallel", 4, 10),
    Sketcher.Constraint("Perpendicular", 6, 13),
    Sketcher.Constraint("Vertical", 7, 2, 11, 2),
    Sketcher.Constraint("Vertical", 5, 2, 13, 2),
    Sketcher.Constraint("Equal", 7, 12),
    Sketcher.Constraint("Equal", 4, 10),
    Sketcher.Constraint("Radius", 3, 46.0),
    Sketcher.Constraint("DistanceY", 0, 1, 0, 2, 6.0),
    Sketcher.Constraint("DistanceY", -1, 1, 1, 2, 61.0),
    Sketcher.Constraint("DistanceY", -1, 1, 7, 2, 46.0),
    Sketcher.Constraint("DistanceY", -1, 1, 10, 2, 7.0),
    Sketcher.Constraint("DistanceX", 1, 2, 0, 2, 24.0),
    Sketcher.Constraint("DistanceY", 4, 2, 3, 3, 34.0),
    Sketcher.Constraint("DistanceX", 3, 3, 5, 2, 18.0),
    Sketcher.Constraint("DistanceY", 9, 2, 4, 2, 12.0),
    Sketcher.Constraint("DistanceX", 6, 2, -1, 1, 78.5),
    Sketcher.Constraint("DistanceX", 5, 1, 5, 2, 12.233398),
    Sketcher.Constraint("DistanceX", 11, 1, 11, 2, 12.820421),
    Sketcher.Constraint("DistanceY", 7, 1, 7, 2, 10.84541),
    Sketcher.Constraint("DistanceX", 8, 2, 8, 1, 15.982583),
])
sketch10.setExpression("Constraints[28]", "Params.sketch10_radius")
sketch10.setExpression("Constraints[29]", "Params.sketch10_height")
pocket9 = body.newObject("PartDesign::Pocket", "Pocket008")
pocket9.Profile = sketch10
pocket9.setExpression("Length", "Params.pocket9_length")
doc.recompute()

fillet5 = body.newObject("PartDesign::Fillet", "Fillet004")
fillet5.Base = (pocket9, edges_at(pocket9, [
    (-111.633, 22.225, 1.5),
    (-114.444, 9, 1.5),
    (-136.199, 9, 1.5),
    (-123.235, 27.306, 1.5),
    (-115.155, 72.5, 1.5),
    (-115.155, 65.383, 1.5),
    (-121.498, 61, 1.5),
    (-132.707, 61, 1.5),
    (-133.155, 72.5, 1.5),
    (-128.131, 30.774, 1.5),
    (-142.021, 11.161, 1.5),
    (-153.97, 22.966, 1.5),
    (-134.527, 37.092, 1.5),
    (-138.054, 41.946, 1.5),
    (-157.497, 27.82, 1.5),
    (-166.666, 48, 1.5),
    (-98.435, 20.5, 1.5),
    (-96.489, -3.5, 1.5),
    (-110.761, -2.531, 1.5),
    (-105.764, 20.977, 1.5),
    (-111.06, 48, 1.5),
    (-100.383, 44.534, 1.5),
    (-99.408, 32.501, 1.5),
    (-127.681, 48, 1.5),
    (-81.155, 20.5, 1.5),
    (-78.5, 17.845, 1.5),
    (-78.5, 7, 1.5),
    (-91.32, 7, 1.5),
    (-92.415, 20.5, 1.5),
    (-78.5, 35.155, 1.5),
    (-81.155, 32.5, 1.5),
    (-93.388, 32.5, 1.5),
    (-94.483, 46, 1.5),
    (-78.5, 46, 1.5),
    (-144.825, 61, 1.5),
    (-169.155, 61, 1.5),
    (-145.155, 72.5, 1.5),
    (-141.271, 48, 1.5),
]))
fillet5.setExpression("Radius", "Params.fillet5_radius")

doc.recompute()
